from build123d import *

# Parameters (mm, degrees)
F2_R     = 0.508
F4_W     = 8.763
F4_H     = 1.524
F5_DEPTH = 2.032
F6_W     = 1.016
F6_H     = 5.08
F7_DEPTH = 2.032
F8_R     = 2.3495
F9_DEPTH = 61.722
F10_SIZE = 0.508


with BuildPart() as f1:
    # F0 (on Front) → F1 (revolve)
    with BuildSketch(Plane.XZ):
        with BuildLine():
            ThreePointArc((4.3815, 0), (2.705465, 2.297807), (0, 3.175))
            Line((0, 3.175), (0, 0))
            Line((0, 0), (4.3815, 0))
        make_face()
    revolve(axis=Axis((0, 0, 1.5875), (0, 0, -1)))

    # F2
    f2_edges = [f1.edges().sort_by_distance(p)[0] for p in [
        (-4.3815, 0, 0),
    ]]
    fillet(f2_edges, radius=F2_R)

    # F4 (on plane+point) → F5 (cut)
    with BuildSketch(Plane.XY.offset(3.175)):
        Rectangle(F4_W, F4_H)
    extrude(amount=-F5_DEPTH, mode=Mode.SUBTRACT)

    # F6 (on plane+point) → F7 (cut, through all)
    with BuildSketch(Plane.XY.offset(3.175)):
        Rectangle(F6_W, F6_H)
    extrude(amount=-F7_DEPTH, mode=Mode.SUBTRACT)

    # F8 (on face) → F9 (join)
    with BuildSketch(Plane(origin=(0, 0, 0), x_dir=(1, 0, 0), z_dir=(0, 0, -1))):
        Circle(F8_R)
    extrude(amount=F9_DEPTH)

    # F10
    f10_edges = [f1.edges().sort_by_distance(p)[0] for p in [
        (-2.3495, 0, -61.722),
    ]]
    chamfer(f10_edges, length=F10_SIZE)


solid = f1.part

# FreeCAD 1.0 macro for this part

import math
import FreeCAD as App
import Part
import Sketcher
from FreeCAD import Vector
Q = App.Units.Quantity


def edges_at(feature, points):
    """Names of the edges that pass closest to the given points."""
    edges = feature.Shape.Edges
    near = lambda p: min(range(len(edges)), key=lambda i: edges[i].distToShape(Part.Vertex(*p))[0])
    return sorted({f"Edge{near(p) + 1}" for p in points})

doc = App.newDocument("Part")
body = doc.addObject("PartDesign::Body", "Body")

# Sketch on XZ plane
sketch1 = body.newObject("Sketcher::SketchObject", "Sketch")
sketch1.AttachmentSupport = (doc.getObject("XZ_Plane"), [""])
sketch1.MapMode = "FlatFace"
sketch1.addGeometry([
    Part.ArcOfCircle(Part.Circle(Vector(0, -1.435735, 0), Vector(0, 0, 1), 4.610735), math.radians(18.142997), math.radians(89.999998)),
    Part.LineSegment(Vector(0, 3.175, 0), Vector(0, 0, 0)),
    Part.LineSegment(Vector(0, 0, 0), Vector(4.3815, 0, 0)),
], False)
sketch1.addConstraint([
    Sketcher.Constraint("Coincident", 0, 2, 1, 1),
    Sketcher.Constraint("Coincident", 1, 2, 2, 1),
    Sketcher.Constraint("Coincident", 2, 2, 0, 1),
    Sketcher.Constraint("Vertical", 1),
    Sketcher.Constraint("Horizontal", 2),
    Sketcher.Constraint("Coincident", 1, 2, -1, 1),
    Sketcher.Constraint("PointOnObject", 0, 3, -2),
    Sketcher.Constraint("DistanceY", 1, 2, 1, 1, Q("0.125 in")),
    Sketcher.Constraint("DistanceX", 2, 1, 2, 2, Q("0.1725 in")),
])
revolution = body.newObject("PartDesign::Revolution", "Revolution")
revolution.Profile = sketch1
revolution.ReferenceAxis = (sketch1, ["V_Axis"])
revolution.Angle = 360
doc.recompute()

fillet = body.newObject("PartDesign::Fillet", "Fillet")
fillet.Base = (revolution, edges_at(revolution, [(-4.381, 0, 0)]))
fillet.Radius = Q("0.02 in")

# Sketch on XY plane
sketch2 = body.newObject("Sketcher::SketchObject", "Sketch001")
sketch2.AttachmentSupport = (doc.getObject("XY_Plane"), [""])
sketch2.MapMode = "FlatFace"
sketch2.AttachmentOffset = App.Placement(Vector(0, 0, 0.125 * 25.4), App.Rotation())
sketch2.addGeometry([
    Part.LineSegment(Vector(-4.3815, 0.762, 0), Vector(-4.3815, -0.762, 0)),
    Part.LineSegment(Vector(-4.3815, -0.762, 0), Vector(4.3815, -0.762, 0)),
    Part.LineSegment(Vector(4.3815, -0.762, 0), Vector(4.3815, 0.762, 0)),
    Part.LineSegment(Vector(4.3815, 0.762, 0), Vector(-4.3815, 0.762, 0)),
], False)
sketch2.addConstraint([
    Sketcher.Constraint("Coincident", 0, 2, 1, 1),
    Sketcher.Constraint("Coincident", 1, 2, 2, 1),
    Sketcher.Constraint("Coincident", 2, 2, 3, 1),
    Sketcher.Constraint("Coincident", 3, 2, 0, 1),
    Sketcher.Constraint("Vertical", 0),
    Sketcher.Constraint("Horizontal", 1),
    Sketcher.Constraint("Vertical", 2),
    Sketcher.Constraint("Horizontal", 3),
    Sketcher.Constraint("Symmetric", 0, 2, 2, 2, -1, 1),
    Sketcher.Constraint("DistanceY", 0, 2, 0, 1, Q("0.06 in")),
    Sketcher.Constraint("DistanceX", 1, 1, 1, 2, Q("0.345 in")),
])
pocket1 = body.newObject("PartDesign::Pocket", "Pocket")
pocket1.Profile = sketch2
pocket1.Length = Q("0.08 in")

# Sketch on XY plane
sketch3 = body.newObject("Sketcher::SketchObject", "Sketch002")
sketch3.AttachmentSupport = (doc.getObject("XY_Plane"), [""])
sketch3.MapMode = "FlatFace"
sketch3.AttachmentOffset = App.Placement(Vector(0, 0, 0.125 * 25.4), App.Rotation())
sketch3.addGeometry([
    Part.LineSegment(Vector(-0.508, 2.54, 0), Vector(-0.508, -2.54, 0)),
    Part.LineSegment(Vector(-0.508, -2.54, 0), Vector(0.508, -2.54, 0)),
    Part.LineSegment(Vector(0.508, -2.54, 0), Vector(0.508, 2.54, 0)),
    Part.LineSegment(Vector(0.508, 2.54, 0), Vector(-0.508, 2.54, 0)),
], False)
sketch3.addConstraint([
    Sketcher.Constraint("Coincident", 0, 2, 1, 1),
    Sketcher.Constraint("Coincident", 1, 2, 2, 1),
    Sketcher.Constraint("Coincident", 2, 2, 3, 1),
    Sketcher.Constraint("Coincident", 3, 2, 0, 1),
    Sketcher.Constraint("Vertical", 0),
    Sketcher.Constraint("Horizontal", 1),
    Sketcher.Constraint("Vertical", 2),
    Sketcher.Constraint("Horizontal", 3),
    Sketcher.Constraint("Symmetric", 0, 2, 2, 2, -1, 1),
    Sketcher.Constraint("DistanceY", 0, 2, 0, 1, Q("0.2 in")),
    Sketcher.Constraint("DistanceX", 1, 1, 1, 2, Q("0.04 in")),
])
pocket2 = body.newObject("PartDesign::Pocket", "Pocket001")
pocket2.Profile = sketch3
pocket2.Length = Q("0.08 in")

# Sketch on XY plane
sketch4 = body.newObject("Sketcher::SketchObject", "Sketch003")
sketch4.AttachmentSupport = (doc.getObject("XY_Plane"), [""])
sketch4.MapMode = "FlatFace"
sketch4.addGeometry(Part.Circle(Vector(0, 0, 0), Vector(0, 0, 1), 2.3495), False)
sketch4.addConstraint([
    Sketcher.Constraint("Coincident", 0, 3, -1, 1),
    Sketcher.Constraint("Diameter", 0, Q("0.185 in")),
])
pad1 = body.newObject("PartDesign::Pad", "Pad")
pad1.Profile = sketch4
pad1.Length = Q("2.43 in")
pad1.Reversed = True
doc.recompute()

chamfer = body.newObject("PartDesign::Chamfer", "Chamfer")
chamfer.Base = (pad1, edges_at(pad1, [(-2.349, 0, -61.722)]))
chamfer.Size = Q("0.02 in")

doc.recompute()
